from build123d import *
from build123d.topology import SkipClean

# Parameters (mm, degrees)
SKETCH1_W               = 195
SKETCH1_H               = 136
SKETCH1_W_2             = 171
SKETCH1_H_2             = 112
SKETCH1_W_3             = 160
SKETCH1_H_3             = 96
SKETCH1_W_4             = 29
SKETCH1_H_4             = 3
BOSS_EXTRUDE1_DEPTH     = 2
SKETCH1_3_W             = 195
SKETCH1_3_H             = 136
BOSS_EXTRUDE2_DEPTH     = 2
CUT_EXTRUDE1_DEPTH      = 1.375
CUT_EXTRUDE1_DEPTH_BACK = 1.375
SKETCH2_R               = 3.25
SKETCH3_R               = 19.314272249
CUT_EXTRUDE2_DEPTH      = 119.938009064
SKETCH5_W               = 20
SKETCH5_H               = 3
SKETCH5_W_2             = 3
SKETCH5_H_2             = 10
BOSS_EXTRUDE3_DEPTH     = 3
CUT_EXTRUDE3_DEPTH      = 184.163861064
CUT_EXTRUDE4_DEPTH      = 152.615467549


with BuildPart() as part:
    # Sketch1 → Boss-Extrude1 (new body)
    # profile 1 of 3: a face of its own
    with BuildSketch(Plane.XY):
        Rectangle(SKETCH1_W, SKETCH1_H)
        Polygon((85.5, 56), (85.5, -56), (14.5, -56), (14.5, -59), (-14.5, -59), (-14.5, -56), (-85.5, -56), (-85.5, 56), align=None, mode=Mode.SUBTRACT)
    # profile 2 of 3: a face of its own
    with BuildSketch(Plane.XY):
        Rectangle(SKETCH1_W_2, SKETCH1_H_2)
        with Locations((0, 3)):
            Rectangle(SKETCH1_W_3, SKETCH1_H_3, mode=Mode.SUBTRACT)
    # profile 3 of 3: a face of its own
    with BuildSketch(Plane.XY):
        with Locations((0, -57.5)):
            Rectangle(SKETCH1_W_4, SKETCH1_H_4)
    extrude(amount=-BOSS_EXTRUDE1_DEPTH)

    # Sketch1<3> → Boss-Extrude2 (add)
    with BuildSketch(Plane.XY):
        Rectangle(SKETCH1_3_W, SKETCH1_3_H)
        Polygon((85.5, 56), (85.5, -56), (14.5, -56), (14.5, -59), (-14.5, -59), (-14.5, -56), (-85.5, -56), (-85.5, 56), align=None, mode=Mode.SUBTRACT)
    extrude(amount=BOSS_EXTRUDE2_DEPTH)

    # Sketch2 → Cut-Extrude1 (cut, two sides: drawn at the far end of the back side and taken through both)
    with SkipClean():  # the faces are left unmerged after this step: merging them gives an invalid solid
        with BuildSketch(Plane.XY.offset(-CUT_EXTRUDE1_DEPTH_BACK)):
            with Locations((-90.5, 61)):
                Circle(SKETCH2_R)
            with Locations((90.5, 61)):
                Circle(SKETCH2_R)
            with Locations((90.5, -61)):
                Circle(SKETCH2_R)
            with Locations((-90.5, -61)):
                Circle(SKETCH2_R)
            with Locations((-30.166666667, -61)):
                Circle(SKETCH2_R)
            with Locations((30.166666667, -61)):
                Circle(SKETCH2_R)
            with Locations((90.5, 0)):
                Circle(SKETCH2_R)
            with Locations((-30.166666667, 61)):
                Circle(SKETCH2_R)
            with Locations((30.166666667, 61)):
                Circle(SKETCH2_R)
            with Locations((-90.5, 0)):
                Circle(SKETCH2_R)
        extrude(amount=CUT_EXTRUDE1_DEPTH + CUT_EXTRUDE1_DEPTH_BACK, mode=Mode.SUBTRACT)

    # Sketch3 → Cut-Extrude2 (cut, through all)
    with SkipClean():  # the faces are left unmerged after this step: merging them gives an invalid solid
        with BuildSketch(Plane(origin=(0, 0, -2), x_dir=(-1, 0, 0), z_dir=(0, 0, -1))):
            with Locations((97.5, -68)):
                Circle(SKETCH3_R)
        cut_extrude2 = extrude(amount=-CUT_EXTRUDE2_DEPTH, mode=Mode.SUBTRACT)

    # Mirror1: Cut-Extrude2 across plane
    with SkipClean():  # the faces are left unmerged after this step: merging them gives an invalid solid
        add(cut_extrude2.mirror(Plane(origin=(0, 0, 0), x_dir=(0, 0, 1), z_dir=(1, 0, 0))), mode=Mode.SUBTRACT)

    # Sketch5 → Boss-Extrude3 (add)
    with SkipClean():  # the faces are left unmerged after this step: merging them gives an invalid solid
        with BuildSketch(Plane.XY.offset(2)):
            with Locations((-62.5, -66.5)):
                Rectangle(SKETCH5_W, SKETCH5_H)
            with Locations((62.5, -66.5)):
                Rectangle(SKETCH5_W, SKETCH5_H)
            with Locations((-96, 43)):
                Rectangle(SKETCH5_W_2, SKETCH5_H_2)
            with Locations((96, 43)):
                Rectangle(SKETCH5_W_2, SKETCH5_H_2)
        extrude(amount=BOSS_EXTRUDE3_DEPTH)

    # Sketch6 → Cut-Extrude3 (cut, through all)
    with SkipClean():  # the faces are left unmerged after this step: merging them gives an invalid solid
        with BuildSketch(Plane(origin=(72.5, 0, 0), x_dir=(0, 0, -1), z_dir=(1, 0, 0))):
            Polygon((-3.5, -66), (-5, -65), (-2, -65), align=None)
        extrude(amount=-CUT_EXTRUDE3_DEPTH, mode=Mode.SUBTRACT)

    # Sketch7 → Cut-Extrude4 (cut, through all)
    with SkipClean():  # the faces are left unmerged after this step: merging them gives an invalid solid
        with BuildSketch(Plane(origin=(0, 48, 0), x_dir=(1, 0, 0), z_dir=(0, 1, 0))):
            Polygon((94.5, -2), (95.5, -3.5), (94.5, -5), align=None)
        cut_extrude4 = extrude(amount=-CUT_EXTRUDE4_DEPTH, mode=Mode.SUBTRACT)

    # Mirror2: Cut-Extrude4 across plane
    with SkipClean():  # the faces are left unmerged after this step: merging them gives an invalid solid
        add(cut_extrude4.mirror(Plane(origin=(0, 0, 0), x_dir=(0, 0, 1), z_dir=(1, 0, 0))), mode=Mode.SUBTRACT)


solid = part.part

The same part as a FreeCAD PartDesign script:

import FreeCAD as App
import Part
import Sketcher


def add_polygon(sketch, points):
    """Adds a closed chain of lines whose ends are joined by coincident constraints."""
    first, n = sketch.GeometryCount, len(points)
    for a, b in zip(points, points[1:] + points[:1]):
        sketch.addGeometry(Part.LineSegment(App.Vector(*a, 0), App.Vector(*b, 0)), False)
    for i in range(n):
        sketch.addConstraint(Sketcher.Constraint("Coincident", first + i, 2, first + (i + 1) % n, 1))

doc = App.newDocument("Part")
body = doc.addObject("PartDesign::Body", "Body")

# Sketch on XY plane
sketch1 = body.newObject("Sketcher::SketchObject", "Sketch")
sketch1.AttachmentSupport = (doc.getObject("XY_Plane"), [""])
sketch1.MapMode = "FlatFace"
add_polygon(sketch1, [(-98, 68), (-98, -68), (98, -68), (98, 68)])  # lines 0-3
add_polygon(sketch1, [(-80, 51), (80, 51), (80, -45), (-80, -45)])  # lines 4-7
sketch1.addConstraint([
    Sketcher.Constraint("Vertical", 0),
    Sketcher.Constraint("Horizontal", 1),
    Sketcher.Constraint("Vertical", 2),
    Sketcher.Constraint("Horizontal", 3),
    Sketcher.Constraint("Horizontal", 4),
    Sketcher.Constraint("Vertical", 5),
    Sketcher.Constraint("Horizontal", 6),
    Sketcher.Constraint("Vertical", 7),
    Sketcher.Constraint("Symmetric", 0, 2, 2, 2, -1, 1),
    Sketcher.Constraint("DistanceX", 1, 1, 1, 2, 195.0),
    Sketcher.Constraint("DistanceX", 4, 1, 4, 2, 160.0),
    Sketcher.Constraint("DistanceY", 0, 2, 0, 1, 136.0),
    Sketcher.Constraint("DistanceY", 5, 2, 5, 1, 96.0),
    Sketcher.Constraint("DistanceX", -1, 1, 4, 2, 80.0),
    Sketcher.Constraint("DistanceY", -1, 1, 4, 2, 51.0),
])
pad1 = body.newObject("PartDesign::Pad", "Pad")
pad1.Profile = sketch1
pad1.Length = 2
pad1.Reversed = True

# Sketch on XY plane
sketch2 = body.newObject("Sketcher::SketchObject", "Sketch001")
sketch2.AttachmentSupport = (doc.getObject("XY_Plane"), [""])
sketch2.MapMode = "FlatFace"
add_polygon(sketch2, [(-97.5, 68), (-97.5, -68), (97.5, -68), (97.5, 68)])  # lines 0-3
add_polygon(sketch2, [(-85.5, 56), (85.5, 56), (85.5, -56), (14.5, -56), (14.5, -59), (-14.5, -59), (-14.5, -56), (-85.5, -56)])  # lines 4-11
sketch2.addConstraint([
    Sketcher.Constraint("Vertical", 0),
    Sketcher.Constraint("Horizontal", 1),
    Sketcher.Constraint("Vertical", 2),
    Sketcher.Constraint("Horizontal", 3),
    Sketcher.Constraint("Horizontal", 4),
    Sketcher.Constraint("Vertical", 5),
    Sketcher.Constraint("Horizontal", 6),
    Sketcher.Constraint("Vertical", 7),
    Sketcher.Constraint("Horizontal", 8),
    Sketcher.Constraint("Vertical", 9),
    Sketcher.Constraint("Horizontal", 10),
    Sketcher.Constraint("Vertical", 11),
    Sketcher.Constraint("Symmetric", 0, 2, 2, 2, -1, 1),
    Sketcher.Constraint("Symmetric", 4, 2, 10, 2, -1, 1),
    Sketcher.Constraint("Symmetric", 6, 2, 9, 2, -2),
    Sketcher.Constraint("DistanceX", 1, 1, 1, 2, 195.0),
    Sketcher.Constraint("DistanceX", 4, 1, 4, 2, 171.0),
    Sketcher.Constraint("DistanceX", 6, 2, 6, 1, 71.0),
    Sketcher.Constraint("DistanceY", 0, 2, 0, 1, 136.0),
    Sketcher.Constraint("DistanceY", 5, 2, 5, 1, 112.0),
    Sketcher.Constraint("DistanceY", 7, 2, 7, 1, 3.0),
])
pad2 = body.newObject("PartDesign::Pad", "Pad001")
pad2.Profile = sketch2
pad2.Length = 2

# Sketch on XY plane
sketch3 = body.newObject("Sketcher::SketchObject", "Sketch002")
sketch3.AttachmentSupport = (doc.getObject("XY_Plane"), [""])
sketch3.MapMode = "FlatFace"
sketch3.addGeometry([
    Part.Circle(App.Vector(-90.5, 61, 0), App.Vector(0, 0, 1), 3.2),  # 0
    Part.Circle(App.Vector(90.5, 61, 0), App.Vector(0, 0, 1), 3.2),  # 1
    Part.Circle(App.Vector(90.5, -61, 0), App.Vector(0, 0, 1), 3.2),  # 2
    Part.Circle(App.Vector(-90.5, -61, 0), App.Vector(0, 0, 1), 3.2),  # 3
    Part.Circle(App.Vector(-30.2, -61, 0), App.Vector(0, 0, 1), 3.2),  # 4
    Part.Circle(App.Vector(30.2, -61, 0), App.Vector(0, 0, 1), 3.2),  # 5
    Part.Circle(App.Vector(90.5, 0, 0), App.Vector(0, 0, 1), 3.2),  # 6
    Part.Circle(App.Vector(-30.2, 61, 0), App.Vector(0, 0, 1), 3.2),  # 7
    Part.Circle(App.Vector(30.2, 61, 0), App.Vector(0, 0, 1), 3.2),  # 8
    Part.Circle(App.Vector(-90.5, 0, 0), App.Vector(0, 0, 1), 3.2),  # 9
], False)
sketch3.addConstraint([
    Sketcher.Constraint("Equal", 0, 1),
    Sketcher.Constraint("Equal", 1, 2),
    Sketcher.Constraint("Equal", 2, 3),
    Sketcher.Constraint("Equal", 3, 4),
    Sketcher.Constraint("Equal", 4, 5),
    Sketcher.Constraint("Equal", 5, 6),
    Sketcher.Constraint("Equal", 6, 7),
    Sketcher.Constraint("Equal", 7, 8),
    Sketcher.Constraint("Equal", 8, 9),
    Sketcher.Constraint("Symmetric", 0, 3, 2, 3, -1, 1),
    Sketcher.Constraint("Symmetric", 1, 3, 3, 3, -1, 1),
    Sketcher.Constraint("Symmetric", 5, 3, 7, 3, -1, 1),
    Sketcher.Constraint("Symmetric", 4, 3, 8, 3, -1, 1),
    Sketcher.Constraint("Symmetric", 6, 3, 9, 3, -1, 1),
    Sketcher.Constraint("Symmetric", 0, 3, 1, 3, -2),
    Sketcher.Constraint("Symmetric", 4, 3, 5, 3, -2),
    Sketcher.Constraint("PointOnObject", 6, 3, -1),
    Sketcher.Constraint("Horizontal", 3, 3, 4, 3),
    Sketcher.Constraint("Vertical", 2, 3, 6, 3),
    Sketcher.Constraint("Diameter", 0, 6.5),
    Sketcher.Constraint("DistanceY", -1, 1, 0, 3, 61.0),
    Sketcher.Constraint("DistanceX", 0, 3, 1, 3, 181.0),
    Sketcher.Constraint("DistanceX", 4, 3, -1, 1, 30.166667),
])
pocket1 = body.newObject("PartDesign::Pocket", "Pocket")
pocket1.Profile = sketch3
pocket1.Type = "TwoLengths"
pocket1.Length = 1.375
pocket1.Length2 = 1.375
pocket1.Reversed = True

# Sketch on XY plane
sketch4 = body.newObject("Sketcher::SketchObject", "Sketch003")
sketch4.AttachmentSupport = (doc.getObject("XY_Plane"), [""])
sketch4.MapMode = "FlatFace"
sketch4.AttachmentOffset = App.Placement(App.Vector(0, 0, -2), App.Rotation())
sketch4.addGeometry(Part.Circle(App.Vector(-98, -68, 0), App.Vector(0, 0, 1), 19), False)
sketch4.addConstraint([
    Sketcher.Constraint("DistanceY", 0, 3, -1, 1, 68.0),
    Sketcher.Constraint("DistanceX", 0, 3, -1, 1, 97.5),
    Sketcher.Constraint("Diameter", 0, 38.628544),
])
pocket2 = body.newObject("PartDesign::Pocket", "Pocket001")
pocket2.Profile = sketch4
pocket2.Type = "ThroughAll"
pocket2.Reversed = True
doc.recompute()

mirrored = body.newObject("PartDesign::Mirrored", "Mirrored")
mirrored.Originals = [pocket2]
mirrored.MirrorPlane = (doc.getObject("YZ_Plane"), [""])
body.Tip = mirrored

# Sketch on XY plane
sketch5 = body.newObject("Sketcher::SketchObject", "Sketch004")
sketch5.AttachmentSupport = (doc.getObject("XY_Plane"), [""])
sketch5.MapMode = "FlatFace"
sketch5.AttachmentOffset = App.Placement(App.Vector(0, 0, 2), App.Rotation())
add_polygon(sketch5, [(-72.5, -65), (-72.5, -68), (-52.5, -68), (-52.5, -65)])  # lines 0-3
add_polygon(sketch5, [(52.5, -65), (52.5, -68), (72.5, -68), (72.5, -65)])  # lines 4-7
add_polygon(sketch5, [(-97.5, 48), (-97.5, 38), (-94.5, 38), (-94.5, 48)])  # lines 8-11
add_polygon(sketch5, [(94.5, 48), (94.5, 38), (97.5, 38), (97.5, 48)])  # lines 12-15
sketch5.addConstraint([
    Sketcher.Constraint("Vertical", 0),
    Sketcher.Constraint("Horizontal", 1),
    Sketcher.Constraint("Vertical", 2),
    Sketcher.Constraint("Horizontal", 3),
    Sketcher.Constraint("Vertical", 4),
    Sketcher.Constraint("Horizontal", 5),
    Sketcher.Constraint("Vertical", 6),
    Sketcher.Constraint("Horizontal", 7),
    Sketcher.Constraint("Vertical", 8),
    Sketcher.Constraint("Horizontal", 9),
    Sketcher.Constraint("Vertical", 10),
    Sketcher.Constraint("Horizontal", 11),
    Sketcher.Constraint("Vertical", 12),
    Sketcher.Constraint("Horizontal", 13),
    Sketcher.Constraint("Vertical", 14),
    Sketcher.Constraint("Horizontal", 15),
    Sketcher.Constraint("Symmetric", 1, 2, 4, 2, -2),
    Sketcher.Constraint("Symmetric", 3, 2, 6, 2, -2),
    Sketcher.Constraint("Symmetric", 9, 2, 12, 2, -2),
    Sketcher.Constraint("Symmetric", 11, 2, 14, 2, -2),
    Sketcher.Constraint("Equal", 15, 0),
    Sketcher.Constraint("DistanceX", 1, 1, 1, 2, 20.0),
    Sketcher.Constraint("DistanceX", 9, 1, 9, 2, 3.0),
    Sketcher.Constraint("DistanceY", 8, 2, 8, 1, 10.0),
    Sketcher.Constraint("DistanceY", 0, 2, -1, 1, 68.0),
    Sketcher.Constraint("DistanceY", -1, 1, 8, 2, 38.0),
    Sketcher.Constraint("DistanceX", 1, 2, 4, 2, 105.0),
    Sketcher.Constraint("DistanceX", 8, 2, 3, 2, 25.0),
])
pad3 = body.newObject("PartDesign::Pad", "Pad002")
pad3.Profile = sketch5
pad3.Length = 3

# Sketch on YZ plane
sketch6 = body.newObject("Sketcher::SketchObject", "Sketch005")
sketch6.AttachmentSupport = (doc.getObject("YZ_Plane"), [""])
sketch6.MapMode = "FlatFace"
sketch6.AttachmentOffset = App.Placement(App.Vector(0, 0, 72.5), App.Rotation())
add_polygon(sketch6, [(-65, 5), (-66, 3.5), (-65, 2)])  # lines 0-2
sketch6.addConstraint([
    Sketcher.Constraint("Vertical", 2),
    Sketcher.Constraint("Equal", 0, 1),
    Sketcher.Constraint("DistanceY", 2, 1, 2, 2, 3.0),
    Sketcher.Constraint("DistanceX", 0, 2, -1, 1, 66.0),
    Sketcher.Constraint("DistanceX", 1, 2, -1, 1, 65.0),
    Sketcher.Constraint("DistanceY", -1, 1, 1, 2, 2.0),
])
pocket3 = body.newObject("PartDesign::Pocket", "Pocket002")
pocket3.Profile = sketch6
pocket3.Type = "ThroughAll"

# Sketch on XZ plane
sketch7 = body.newObject("Sketcher::SketchObject", "Sketch006")
sketch7.AttachmentSupport = (doc.getObject("XZ_Plane"), [""])
sketch7.MapMode = "FlatFace"
sketch7.AttachmentOffset = App.Placement(App.Vector(0, 0, -48), App.Rotation())
add_polygon(sketch7, [(95.5, 3.5), (94.5, 2), (94.5, 5)])  # lines 0-2
sketch7.addConstraint([
    Sketcher.Constraint("Vertical", 1),
    Sketcher.Constraint("Equal", 0, 2),
    Sketcher.Constraint("DistanceY", 1, 1, 1, 2, 3.0),
    Sketcher.Constraint("DistanceY", -1, 1, 0, 2, 2.0),
    Sketcher.Constraint("DistanceX", 0, 2, 2, 2, 1.0),
    Sketcher.Constraint("DistanceX", -1, 1, 0, 2, 94.5),
])
pocket4 = body.newObject("PartDesign::Pocket", "Pocket003")
pocket4.Profile = sketch7
pocket4.Type = "ThroughAll"
pocket4.Reversed = True
doc.recompute()

mirrored2 = body.newObject("PartDesign::Mirrored", "Mirrored001")
mirrored2.Originals = [pocket4]
mirrored2.MirrorPlane = (doc.getObject("YZ_Plane"), [""])
body.Tip = mirrored2

doc.recompute()
